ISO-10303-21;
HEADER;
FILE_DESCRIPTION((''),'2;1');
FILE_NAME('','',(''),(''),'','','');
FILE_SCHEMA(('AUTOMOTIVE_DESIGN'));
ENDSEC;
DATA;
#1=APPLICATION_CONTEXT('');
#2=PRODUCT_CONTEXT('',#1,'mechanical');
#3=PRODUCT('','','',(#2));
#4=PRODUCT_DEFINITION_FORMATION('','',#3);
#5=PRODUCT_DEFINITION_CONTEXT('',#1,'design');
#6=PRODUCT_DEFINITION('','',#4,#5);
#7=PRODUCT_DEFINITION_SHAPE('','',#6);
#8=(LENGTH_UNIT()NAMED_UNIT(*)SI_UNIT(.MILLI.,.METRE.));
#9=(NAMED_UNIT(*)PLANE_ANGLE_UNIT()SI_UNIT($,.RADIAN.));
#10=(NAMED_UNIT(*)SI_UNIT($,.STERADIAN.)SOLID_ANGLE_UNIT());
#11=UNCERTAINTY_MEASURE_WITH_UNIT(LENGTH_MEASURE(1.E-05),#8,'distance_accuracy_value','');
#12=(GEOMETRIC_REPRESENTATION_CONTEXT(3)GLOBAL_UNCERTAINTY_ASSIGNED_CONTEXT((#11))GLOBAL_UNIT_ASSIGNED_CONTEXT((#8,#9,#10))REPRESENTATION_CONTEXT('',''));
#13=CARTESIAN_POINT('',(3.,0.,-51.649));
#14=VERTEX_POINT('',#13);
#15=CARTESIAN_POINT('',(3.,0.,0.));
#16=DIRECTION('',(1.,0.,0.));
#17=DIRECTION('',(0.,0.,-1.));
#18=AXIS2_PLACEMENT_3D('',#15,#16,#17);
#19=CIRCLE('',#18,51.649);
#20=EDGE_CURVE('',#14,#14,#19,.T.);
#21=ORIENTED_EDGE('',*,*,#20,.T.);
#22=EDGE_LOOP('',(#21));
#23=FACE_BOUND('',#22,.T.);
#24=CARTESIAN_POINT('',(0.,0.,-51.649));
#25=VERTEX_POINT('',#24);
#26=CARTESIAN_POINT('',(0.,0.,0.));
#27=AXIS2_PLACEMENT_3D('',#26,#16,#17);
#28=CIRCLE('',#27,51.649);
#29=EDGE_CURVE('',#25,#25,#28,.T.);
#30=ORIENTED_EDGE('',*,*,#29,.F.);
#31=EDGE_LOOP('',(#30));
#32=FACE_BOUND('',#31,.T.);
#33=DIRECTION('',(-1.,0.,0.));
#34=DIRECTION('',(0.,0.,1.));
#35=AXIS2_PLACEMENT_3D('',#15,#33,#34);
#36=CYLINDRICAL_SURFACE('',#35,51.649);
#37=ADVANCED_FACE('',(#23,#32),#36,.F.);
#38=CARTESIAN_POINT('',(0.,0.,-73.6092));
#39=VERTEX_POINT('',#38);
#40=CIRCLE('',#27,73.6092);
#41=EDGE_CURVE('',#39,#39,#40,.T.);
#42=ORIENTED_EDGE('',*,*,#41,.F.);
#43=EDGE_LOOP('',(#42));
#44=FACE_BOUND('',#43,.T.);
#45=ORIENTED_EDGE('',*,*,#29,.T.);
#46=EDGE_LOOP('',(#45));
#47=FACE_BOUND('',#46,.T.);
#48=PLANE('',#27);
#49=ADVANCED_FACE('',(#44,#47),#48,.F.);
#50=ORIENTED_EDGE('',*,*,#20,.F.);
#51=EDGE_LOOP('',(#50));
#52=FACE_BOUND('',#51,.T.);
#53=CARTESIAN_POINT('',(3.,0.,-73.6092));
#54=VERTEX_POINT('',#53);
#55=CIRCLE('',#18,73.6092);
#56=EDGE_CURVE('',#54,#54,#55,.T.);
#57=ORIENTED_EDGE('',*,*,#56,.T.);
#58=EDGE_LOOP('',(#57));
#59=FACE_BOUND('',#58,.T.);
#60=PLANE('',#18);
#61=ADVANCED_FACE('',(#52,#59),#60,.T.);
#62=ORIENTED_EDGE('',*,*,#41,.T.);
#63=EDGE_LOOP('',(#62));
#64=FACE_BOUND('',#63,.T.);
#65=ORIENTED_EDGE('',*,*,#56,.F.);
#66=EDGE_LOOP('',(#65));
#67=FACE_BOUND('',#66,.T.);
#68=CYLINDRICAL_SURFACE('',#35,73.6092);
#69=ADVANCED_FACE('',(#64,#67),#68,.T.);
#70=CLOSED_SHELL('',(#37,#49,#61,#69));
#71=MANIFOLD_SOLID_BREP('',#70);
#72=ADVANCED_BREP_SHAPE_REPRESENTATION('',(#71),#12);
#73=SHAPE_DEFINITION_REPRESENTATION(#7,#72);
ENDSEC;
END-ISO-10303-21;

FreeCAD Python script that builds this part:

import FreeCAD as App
import Part
import Sketcher
from FreeCAD import Vector
Q = App.Units.Quantity

doc = App.newDocument("Part")
body = doc.addObject("PartDesign::Body", "Body")

# Sketch on YZ plane
sketch1 = doc.addObject("Sketcher::SketchObject", "Sketch")
body.addObject(sketch1)
sketch1.AttachmentSupport = (doc.YZ_Plane, [""])
sketch1.MapMode = "FlatFace"
sketch1.addGeometry([
    Part.Circle(Vector(0, 0, 0), Vector(0, 0, 1), 73.6092),
    Part.Circle(Vector(0, 0, 0), Vector(0, 0, 1), 51.649),
], False)
sketch1.addConstraint([
    Sketcher.Constraint("Coincident", 0, 3, -1, 1),
    Sketcher.Constraint("Coincident", 1, 3, -1, 1),
    Sketcher.Constraint("Diameter", 1, Q("103.298 mm")),
    Sketcher.Constraint("Diameter", 0, Q("147.2184 mm")),
])
pad1 = doc.addObject("PartDesign::Pad", "Pad")
body.addObject(pad1)
pad1.Profile = sketch1
pad1.Length = 3

doc.recompute()
